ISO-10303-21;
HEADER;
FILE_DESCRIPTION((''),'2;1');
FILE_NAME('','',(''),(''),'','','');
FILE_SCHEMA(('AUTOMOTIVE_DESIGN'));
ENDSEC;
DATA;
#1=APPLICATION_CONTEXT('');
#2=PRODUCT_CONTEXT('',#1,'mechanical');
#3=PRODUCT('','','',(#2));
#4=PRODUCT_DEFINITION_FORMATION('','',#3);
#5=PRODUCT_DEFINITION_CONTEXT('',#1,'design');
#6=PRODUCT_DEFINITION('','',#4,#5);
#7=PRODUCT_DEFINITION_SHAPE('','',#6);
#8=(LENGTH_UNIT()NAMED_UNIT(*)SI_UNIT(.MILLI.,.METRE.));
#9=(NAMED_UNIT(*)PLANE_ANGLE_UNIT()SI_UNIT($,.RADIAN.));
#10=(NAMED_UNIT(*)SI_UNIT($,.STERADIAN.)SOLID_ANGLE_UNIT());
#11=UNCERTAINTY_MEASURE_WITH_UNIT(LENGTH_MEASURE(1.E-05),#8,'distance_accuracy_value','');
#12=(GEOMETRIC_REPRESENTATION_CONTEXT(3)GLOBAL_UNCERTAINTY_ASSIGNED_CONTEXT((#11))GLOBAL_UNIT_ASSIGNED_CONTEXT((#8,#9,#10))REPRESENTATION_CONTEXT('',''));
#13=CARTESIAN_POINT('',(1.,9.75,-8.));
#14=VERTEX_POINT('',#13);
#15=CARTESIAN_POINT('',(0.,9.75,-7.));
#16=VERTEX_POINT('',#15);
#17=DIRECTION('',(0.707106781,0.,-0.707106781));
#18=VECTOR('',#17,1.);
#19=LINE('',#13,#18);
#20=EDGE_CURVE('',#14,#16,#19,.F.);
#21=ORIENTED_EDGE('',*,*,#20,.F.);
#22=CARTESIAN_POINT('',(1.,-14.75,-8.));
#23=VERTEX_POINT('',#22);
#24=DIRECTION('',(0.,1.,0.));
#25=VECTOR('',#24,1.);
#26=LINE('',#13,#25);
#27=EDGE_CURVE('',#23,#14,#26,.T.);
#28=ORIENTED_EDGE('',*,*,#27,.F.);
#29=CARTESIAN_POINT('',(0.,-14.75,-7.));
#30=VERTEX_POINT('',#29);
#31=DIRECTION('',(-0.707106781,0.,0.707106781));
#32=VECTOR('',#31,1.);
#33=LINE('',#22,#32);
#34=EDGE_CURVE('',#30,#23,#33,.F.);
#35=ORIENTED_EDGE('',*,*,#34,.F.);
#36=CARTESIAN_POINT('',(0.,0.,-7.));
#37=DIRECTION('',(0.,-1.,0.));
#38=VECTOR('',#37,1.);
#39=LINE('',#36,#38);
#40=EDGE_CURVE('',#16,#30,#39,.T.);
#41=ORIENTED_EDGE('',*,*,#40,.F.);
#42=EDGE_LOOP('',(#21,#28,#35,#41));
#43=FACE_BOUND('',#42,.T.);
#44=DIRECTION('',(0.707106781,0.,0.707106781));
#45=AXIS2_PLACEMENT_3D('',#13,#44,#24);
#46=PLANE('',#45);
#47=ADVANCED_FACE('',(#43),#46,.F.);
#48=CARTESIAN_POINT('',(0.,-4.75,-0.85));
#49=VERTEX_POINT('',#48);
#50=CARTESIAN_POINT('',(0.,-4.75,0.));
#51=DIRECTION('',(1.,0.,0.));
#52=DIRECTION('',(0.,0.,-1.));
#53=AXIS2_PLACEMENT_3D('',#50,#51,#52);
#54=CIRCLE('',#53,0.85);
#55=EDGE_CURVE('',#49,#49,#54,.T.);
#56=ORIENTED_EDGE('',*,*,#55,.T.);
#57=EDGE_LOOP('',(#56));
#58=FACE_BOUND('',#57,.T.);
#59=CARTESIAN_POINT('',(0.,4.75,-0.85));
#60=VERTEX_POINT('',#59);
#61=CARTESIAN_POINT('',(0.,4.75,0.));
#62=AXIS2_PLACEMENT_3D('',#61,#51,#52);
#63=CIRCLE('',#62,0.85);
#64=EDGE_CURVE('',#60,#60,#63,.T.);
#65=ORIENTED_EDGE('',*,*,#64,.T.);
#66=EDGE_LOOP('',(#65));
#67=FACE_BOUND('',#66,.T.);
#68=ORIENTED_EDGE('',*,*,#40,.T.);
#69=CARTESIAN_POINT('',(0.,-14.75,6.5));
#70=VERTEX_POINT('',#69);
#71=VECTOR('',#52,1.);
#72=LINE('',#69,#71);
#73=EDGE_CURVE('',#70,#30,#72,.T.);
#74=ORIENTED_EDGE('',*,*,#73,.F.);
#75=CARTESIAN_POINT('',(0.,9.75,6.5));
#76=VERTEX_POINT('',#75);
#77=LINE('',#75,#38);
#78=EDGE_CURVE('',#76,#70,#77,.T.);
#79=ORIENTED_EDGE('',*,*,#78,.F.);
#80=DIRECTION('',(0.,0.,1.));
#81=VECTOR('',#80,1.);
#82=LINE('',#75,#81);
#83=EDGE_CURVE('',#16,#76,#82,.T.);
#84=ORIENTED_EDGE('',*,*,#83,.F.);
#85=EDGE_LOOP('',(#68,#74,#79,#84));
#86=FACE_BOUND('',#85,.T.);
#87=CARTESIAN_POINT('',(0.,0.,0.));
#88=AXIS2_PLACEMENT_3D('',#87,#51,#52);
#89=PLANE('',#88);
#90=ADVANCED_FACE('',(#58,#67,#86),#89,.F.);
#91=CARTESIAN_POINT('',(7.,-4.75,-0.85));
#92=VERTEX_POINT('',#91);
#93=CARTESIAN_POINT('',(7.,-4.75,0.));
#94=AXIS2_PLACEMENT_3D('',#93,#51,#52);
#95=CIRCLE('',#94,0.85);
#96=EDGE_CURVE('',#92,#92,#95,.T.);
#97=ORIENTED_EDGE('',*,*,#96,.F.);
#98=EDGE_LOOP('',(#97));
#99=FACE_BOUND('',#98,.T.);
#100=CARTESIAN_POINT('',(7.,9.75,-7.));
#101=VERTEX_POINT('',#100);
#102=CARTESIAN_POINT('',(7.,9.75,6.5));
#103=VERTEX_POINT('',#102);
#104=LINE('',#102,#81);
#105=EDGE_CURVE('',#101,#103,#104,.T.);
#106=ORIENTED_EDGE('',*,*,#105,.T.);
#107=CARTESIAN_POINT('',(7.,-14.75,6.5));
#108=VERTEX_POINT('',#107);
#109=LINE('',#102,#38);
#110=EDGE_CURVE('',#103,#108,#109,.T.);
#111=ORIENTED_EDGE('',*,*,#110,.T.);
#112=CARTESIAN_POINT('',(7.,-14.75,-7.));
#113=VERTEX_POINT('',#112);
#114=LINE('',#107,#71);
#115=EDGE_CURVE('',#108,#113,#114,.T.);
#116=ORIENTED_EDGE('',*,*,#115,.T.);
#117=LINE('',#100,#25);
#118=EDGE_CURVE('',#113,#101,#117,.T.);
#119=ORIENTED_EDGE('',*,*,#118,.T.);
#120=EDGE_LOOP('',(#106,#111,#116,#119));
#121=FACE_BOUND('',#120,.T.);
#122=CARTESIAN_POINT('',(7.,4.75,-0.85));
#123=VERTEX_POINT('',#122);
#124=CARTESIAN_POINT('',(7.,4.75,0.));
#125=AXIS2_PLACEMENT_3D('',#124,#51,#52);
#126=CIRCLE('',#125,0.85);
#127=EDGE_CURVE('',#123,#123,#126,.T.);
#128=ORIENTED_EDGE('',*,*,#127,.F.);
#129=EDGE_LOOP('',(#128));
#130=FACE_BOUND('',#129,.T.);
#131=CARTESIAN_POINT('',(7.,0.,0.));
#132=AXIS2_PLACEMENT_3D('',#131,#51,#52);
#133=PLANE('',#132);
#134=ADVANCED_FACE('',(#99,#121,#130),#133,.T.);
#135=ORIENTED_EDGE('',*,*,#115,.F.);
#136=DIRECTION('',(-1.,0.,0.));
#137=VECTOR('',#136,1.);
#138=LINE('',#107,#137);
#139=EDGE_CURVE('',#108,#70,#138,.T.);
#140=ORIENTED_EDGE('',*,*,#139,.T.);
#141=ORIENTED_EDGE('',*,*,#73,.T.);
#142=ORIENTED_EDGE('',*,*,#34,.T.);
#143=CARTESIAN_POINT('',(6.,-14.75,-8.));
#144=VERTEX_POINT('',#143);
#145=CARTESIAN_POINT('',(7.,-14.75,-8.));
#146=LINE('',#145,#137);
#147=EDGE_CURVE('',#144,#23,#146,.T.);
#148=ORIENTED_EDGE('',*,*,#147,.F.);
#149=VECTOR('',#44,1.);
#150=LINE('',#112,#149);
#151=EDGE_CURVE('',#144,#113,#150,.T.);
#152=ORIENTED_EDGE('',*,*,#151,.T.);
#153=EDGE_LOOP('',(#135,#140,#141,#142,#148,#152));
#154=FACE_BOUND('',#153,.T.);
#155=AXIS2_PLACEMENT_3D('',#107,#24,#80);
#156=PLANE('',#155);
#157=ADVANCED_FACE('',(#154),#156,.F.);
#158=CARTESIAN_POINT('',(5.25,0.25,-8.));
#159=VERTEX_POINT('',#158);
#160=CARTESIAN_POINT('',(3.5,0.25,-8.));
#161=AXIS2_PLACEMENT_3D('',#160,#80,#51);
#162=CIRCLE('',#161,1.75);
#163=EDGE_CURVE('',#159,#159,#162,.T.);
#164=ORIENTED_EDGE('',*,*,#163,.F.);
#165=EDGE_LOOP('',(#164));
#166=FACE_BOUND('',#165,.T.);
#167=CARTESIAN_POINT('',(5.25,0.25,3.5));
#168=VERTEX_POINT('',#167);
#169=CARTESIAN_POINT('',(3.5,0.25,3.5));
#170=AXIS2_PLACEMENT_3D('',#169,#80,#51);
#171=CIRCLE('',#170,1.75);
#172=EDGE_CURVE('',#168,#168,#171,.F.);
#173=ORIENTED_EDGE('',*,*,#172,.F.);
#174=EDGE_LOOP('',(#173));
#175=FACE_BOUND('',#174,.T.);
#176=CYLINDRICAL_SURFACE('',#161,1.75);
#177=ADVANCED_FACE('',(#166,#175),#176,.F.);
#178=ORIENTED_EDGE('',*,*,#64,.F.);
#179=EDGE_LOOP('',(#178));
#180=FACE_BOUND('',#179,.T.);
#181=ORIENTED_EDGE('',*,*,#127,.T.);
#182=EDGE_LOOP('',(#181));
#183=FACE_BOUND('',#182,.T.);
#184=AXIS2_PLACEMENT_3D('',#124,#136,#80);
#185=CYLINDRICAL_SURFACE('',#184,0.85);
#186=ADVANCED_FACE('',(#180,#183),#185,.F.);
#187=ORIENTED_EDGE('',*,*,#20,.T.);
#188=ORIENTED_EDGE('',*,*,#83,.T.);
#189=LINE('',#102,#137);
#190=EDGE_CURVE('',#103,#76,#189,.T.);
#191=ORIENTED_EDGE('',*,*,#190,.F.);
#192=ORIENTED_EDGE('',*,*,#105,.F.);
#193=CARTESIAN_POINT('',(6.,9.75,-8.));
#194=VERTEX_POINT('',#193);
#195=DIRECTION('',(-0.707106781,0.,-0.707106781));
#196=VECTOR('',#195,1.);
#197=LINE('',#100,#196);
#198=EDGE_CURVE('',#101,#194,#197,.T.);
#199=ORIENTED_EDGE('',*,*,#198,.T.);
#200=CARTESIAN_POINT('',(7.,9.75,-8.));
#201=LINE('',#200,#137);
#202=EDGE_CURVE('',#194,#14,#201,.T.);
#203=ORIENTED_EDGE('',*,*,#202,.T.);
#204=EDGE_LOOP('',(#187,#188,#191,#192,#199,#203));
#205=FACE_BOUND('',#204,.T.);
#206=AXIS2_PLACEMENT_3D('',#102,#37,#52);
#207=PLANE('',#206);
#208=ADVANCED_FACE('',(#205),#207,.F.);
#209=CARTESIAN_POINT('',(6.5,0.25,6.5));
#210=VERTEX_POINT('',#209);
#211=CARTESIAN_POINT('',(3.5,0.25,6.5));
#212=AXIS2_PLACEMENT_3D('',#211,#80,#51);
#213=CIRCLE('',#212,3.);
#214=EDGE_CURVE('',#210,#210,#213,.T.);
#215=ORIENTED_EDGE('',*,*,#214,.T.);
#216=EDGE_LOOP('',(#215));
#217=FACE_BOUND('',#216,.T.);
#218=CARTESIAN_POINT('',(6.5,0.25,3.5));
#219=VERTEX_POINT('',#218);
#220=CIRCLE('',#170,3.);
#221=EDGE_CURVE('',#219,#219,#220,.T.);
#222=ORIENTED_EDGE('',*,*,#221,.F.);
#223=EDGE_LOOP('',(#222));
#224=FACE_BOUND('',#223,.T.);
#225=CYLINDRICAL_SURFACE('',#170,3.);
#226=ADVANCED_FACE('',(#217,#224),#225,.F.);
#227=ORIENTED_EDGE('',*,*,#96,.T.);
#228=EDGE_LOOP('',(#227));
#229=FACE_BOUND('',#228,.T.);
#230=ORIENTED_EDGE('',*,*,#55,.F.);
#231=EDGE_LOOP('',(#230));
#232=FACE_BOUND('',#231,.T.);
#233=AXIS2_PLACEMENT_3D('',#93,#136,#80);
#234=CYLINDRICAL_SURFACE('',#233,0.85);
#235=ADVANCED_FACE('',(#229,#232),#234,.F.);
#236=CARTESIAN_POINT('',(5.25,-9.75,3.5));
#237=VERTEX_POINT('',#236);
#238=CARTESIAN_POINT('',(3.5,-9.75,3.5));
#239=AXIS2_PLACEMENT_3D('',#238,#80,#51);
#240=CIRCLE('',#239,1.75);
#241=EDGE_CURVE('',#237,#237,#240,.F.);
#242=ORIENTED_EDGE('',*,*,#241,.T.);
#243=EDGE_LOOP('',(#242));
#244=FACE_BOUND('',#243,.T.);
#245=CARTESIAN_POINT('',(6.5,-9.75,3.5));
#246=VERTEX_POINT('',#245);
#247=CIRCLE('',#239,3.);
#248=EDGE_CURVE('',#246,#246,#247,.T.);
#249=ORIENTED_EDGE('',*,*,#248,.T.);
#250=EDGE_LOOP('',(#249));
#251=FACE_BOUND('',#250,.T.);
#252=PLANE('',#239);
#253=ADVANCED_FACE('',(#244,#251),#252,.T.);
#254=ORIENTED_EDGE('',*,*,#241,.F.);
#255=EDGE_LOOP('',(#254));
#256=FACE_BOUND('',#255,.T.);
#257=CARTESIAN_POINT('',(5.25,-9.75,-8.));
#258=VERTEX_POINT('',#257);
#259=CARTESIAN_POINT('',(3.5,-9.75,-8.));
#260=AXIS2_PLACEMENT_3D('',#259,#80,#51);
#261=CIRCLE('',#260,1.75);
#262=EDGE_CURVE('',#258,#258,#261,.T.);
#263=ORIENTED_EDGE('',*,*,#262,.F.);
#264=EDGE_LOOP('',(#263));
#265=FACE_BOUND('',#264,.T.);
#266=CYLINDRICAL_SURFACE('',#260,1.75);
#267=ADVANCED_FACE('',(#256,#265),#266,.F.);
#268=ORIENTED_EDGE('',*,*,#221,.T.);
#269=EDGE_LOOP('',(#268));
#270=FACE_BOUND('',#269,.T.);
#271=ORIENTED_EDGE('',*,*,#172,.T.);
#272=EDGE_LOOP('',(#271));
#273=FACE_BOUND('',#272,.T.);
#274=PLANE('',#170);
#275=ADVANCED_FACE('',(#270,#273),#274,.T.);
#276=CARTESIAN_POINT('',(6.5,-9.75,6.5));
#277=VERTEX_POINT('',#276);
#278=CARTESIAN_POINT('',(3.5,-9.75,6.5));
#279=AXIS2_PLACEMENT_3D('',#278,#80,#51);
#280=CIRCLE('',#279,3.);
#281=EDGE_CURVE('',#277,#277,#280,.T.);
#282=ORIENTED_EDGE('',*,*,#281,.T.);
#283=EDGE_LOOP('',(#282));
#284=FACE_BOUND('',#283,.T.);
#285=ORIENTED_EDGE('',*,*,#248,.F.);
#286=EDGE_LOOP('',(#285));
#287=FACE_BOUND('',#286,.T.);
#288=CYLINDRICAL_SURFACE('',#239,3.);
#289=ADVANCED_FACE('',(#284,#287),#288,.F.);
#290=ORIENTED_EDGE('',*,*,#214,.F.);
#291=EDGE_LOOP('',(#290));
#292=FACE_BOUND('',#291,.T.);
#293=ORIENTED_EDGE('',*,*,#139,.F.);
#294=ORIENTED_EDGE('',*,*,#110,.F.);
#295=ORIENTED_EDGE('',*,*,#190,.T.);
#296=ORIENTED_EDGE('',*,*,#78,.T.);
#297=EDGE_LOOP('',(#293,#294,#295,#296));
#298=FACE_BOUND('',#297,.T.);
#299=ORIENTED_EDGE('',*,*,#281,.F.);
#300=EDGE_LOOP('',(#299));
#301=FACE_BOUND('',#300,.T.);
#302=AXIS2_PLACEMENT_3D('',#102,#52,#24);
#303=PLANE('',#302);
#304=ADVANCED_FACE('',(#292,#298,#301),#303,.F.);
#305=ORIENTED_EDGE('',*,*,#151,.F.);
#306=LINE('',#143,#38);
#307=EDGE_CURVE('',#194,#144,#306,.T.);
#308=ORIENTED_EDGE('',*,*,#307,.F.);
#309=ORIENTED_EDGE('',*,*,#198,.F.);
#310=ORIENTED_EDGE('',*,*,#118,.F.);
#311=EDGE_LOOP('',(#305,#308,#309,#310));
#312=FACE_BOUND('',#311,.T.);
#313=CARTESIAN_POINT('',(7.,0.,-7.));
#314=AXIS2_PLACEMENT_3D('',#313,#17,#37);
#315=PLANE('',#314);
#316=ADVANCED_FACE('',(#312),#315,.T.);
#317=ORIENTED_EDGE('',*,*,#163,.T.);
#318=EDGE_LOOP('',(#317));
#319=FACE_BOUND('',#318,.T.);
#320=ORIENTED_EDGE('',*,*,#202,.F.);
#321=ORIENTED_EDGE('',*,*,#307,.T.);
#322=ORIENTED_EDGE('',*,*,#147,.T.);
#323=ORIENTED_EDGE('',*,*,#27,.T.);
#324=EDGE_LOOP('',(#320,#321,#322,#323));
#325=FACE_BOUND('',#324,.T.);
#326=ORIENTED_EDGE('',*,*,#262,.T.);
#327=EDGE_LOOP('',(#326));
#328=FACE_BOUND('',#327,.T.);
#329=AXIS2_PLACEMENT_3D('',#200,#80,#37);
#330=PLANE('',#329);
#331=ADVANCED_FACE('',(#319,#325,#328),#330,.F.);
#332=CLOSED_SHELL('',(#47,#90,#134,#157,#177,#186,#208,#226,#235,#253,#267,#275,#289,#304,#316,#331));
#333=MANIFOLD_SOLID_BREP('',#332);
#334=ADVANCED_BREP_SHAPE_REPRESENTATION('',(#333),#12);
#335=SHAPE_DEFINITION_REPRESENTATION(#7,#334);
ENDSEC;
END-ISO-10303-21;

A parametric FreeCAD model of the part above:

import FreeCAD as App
import Part
import Sketcher
Q = App.Units.Quantity


def edges_at(feature, points):
    """Names of the edges that pass closest to the given points."""
    edges = feature.Shape.Edges
    near = lambda p: min(range(len(edges)), key=lambda i: edges[i].distToShape(Part.Vertex(*p))[0])
    return sorted({f"Edge{near(p) + 1}" for p in points})

doc = App.newDocument("Part")
body = doc.addObject("PartDesign::Body", "Body")

sketch1 = body.newObject("Sketcher::SketchObject", "Sketch")
sketch1.AttachmentSupport = (doc.getObject("YZ_Plane"), [""])
sketch1.MapMode = "FlatFace"
sketch1.addGeometry(Part.LineSegment(App.Vector(9.8, 6.5, 0), App.Vector(-14.8, 6.5, 0)), False)
sketch1.addGeometry(Part.LineSegment(App.Vector(-14.8, 6.5, 0), App.Vector(-14.8, -8, 0)), False)
sketch1.addGeometry(Part.LineSegment(App.Vector(-14.8, -8, 0), App.Vector(9.8, -8, 0)), False)
sketch1.addGeometry(Part.LineSegment(App.Vector(9.8, -8, 0), App.Vector(9.8, 6.5, 0)), False)
sketch1.addGeometry(Part.Circle(App.Vector(-4.8, 0, 0), App.Vector(0, 0, 1), 0.8), False)
sketch1.addGeometry(Part.Circle(App.Vector(4.8, 0, 0), App.Vector(0, 0, 1), 0.8), False)
sketch1.addConstraint(Sketcher.Constraint("Coincident", 0, 2, 1, 1))
sketch1.addConstraint(Sketcher.Constraint("Coincident", 1, 2, 2, 1))
sketch1.addConstraint(Sketcher.Constraint("Coincident", 2, 2, 3, 1))
sketch1.addConstraint(Sketcher.Constraint("Coincident", 3, 2, 0, 1))
sketch1.addConstraint(Sketcher.Constraint("Horizontal", 0))
sketch1.addConstraint(Sketcher.Constraint("Vertical", 1))
sketch1.addConstraint(Sketcher.Constraint("Horizontal", 2))
sketch1.addConstraint(Sketcher.Constraint("Vertical", 3))
sketch1.addConstraint(Sketcher.Constraint("Equal", 4, 5))
sketch1.addConstraint(Sketcher.Constraint("Symmetric", 4, 3, 5, 3, -1, 1))
sketch1.addConstraint(Sketcher.Constraint("PointOnObject", 4, 3, -1))
sketch1.addConstraint(Sketcher.Constraint("Diameter", 4, Q("1.7 mm")))
sketch1.addConstraint(Sketcher.Constraint("DistanceX", 0, 2, 0, 1, Q("24.5 mm")))
sketch1.addConstraint(Sketcher.Constraint("DistanceY", 1, 2, 1, 1, Q("14.5 mm")))
sketch1.addConstraint(Sketcher.Constraint("DistanceY", 1, 2, -1, 1, Q("8 mm")))
sketch1.addConstraint(Sketcher.Constraint("DistanceX", 0, 2, 4, 3, Q("10 mm")))
sketch1.addConstraint(Sketcher.Constraint("DistanceX", 5, 3, 2, 2, Q("5 mm")))
pad1 = body.newObject("PartDesign::Pad", "Pad")
pad1.Profile = sketch1
pad1.Length = 7
doc.recompute()

chamfer = body.newObject("PartDesign::Chamfer", "Chamfer")
chamfer.Base = (pad1, edges_at(pad1, [(7, -2.5, -8), (0, -2.5, -8)]))
chamfer.Size = 1

sketch2 = body.newObject("Sketcher::SketchObject", "Sketch001")
sketch2.AttachmentSupport = (doc.getObject("XY_Plane"), [""])
sketch2.MapMode = "FlatFace"
sketch2.AttachmentOffset = App.Placement(App.Vector(0, 0, 6.5), App.Rotation())
sketch2.addGeometry(Part.Circle(App.Vector(3.5, 0.2, 0), App.Vector(0, 0, 1), 1.8), False)
sketch2.addGeometry(Part.Circle(App.Vector(3.5, -9.8, 0), App.Vector(0, 0, 1), 1.8), False)
sketch2.addConstraint(Sketcher.Constraint("Equal", 0, 1))
sketch2.addConstraint(Sketcher.Constraint("Vertical", 0, 3, 1, 3))
sketch2.addConstraint(Sketcher.Constraint("Diameter", 0, Q("3.5 mm")))
sketch2.addConstraint(Sketcher.Constraint("DistanceY", 1, 3, 0, 3, Q("10 mm")))
sketch2.addConstraint(Sketcher.Constraint("DistanceX", -1, 1, 0, 3, Q("3.5 mm")))
sketch2.addConstraint(Sketcher.Constraint("DistanceY", -1, 1, 0, 3, Q("0.25 mm")))
pocket1 = body.newObject("PartDesign::Pocket", "Pocket")
pocket1.Profile = sketch2
pocket1.Type = "ThroughAll"

sketch3 = body.newObject("Sketcher::SketchObject", "Sketch002")
sketch3.AttachmentSupport = (doc.getObject("XY_Plane"), [""])
sketch3.MapMode = "FlatFace"
sketch3.AttachmentOffset = App.Placement(App.Vector(0, 0, 6.5), App.Rotation())
sketch3.addGeometry(Part.Circle(App.Vector(3.5, 0.2, 0), App.Vector(0, 0, 1), 3), False)
sketch3.addGeometry(Part.Circle(App.Vector(3.5, -9.8, 0), App.Vector(0, 0, 1), 3), False)
sketch3.addConstraint(Sketcher.Constraint("Equal", 0, 1))
sketch3.addConstraint(Sketcher.Constraint("Vertical", 0, 3, 1, 3))
sketch3.addConstraint(Sketcher.Constraint("Diameter", 0, Q("6 mm")))
sketch3.addConstraint(Sketcher.Constraint("DistanceY", 1, 3, 0, 3, Q("10 mm")))
sketch3.addConstraint(Sketcher.Constraint("DistanceX", -1, 1, 0, 3, Q("3.5 mm")))
sketch3.addConstraint(Sketcher.Constraint("DistanceY", -1, 1, 0, 3, Q("0.25 mm")))
pocket2 = body.newObject("PartDesign::Pocket", "Pocket001")
pocket2.Profile = sketch3
pocket2.Length = 3

doc.recompute()
